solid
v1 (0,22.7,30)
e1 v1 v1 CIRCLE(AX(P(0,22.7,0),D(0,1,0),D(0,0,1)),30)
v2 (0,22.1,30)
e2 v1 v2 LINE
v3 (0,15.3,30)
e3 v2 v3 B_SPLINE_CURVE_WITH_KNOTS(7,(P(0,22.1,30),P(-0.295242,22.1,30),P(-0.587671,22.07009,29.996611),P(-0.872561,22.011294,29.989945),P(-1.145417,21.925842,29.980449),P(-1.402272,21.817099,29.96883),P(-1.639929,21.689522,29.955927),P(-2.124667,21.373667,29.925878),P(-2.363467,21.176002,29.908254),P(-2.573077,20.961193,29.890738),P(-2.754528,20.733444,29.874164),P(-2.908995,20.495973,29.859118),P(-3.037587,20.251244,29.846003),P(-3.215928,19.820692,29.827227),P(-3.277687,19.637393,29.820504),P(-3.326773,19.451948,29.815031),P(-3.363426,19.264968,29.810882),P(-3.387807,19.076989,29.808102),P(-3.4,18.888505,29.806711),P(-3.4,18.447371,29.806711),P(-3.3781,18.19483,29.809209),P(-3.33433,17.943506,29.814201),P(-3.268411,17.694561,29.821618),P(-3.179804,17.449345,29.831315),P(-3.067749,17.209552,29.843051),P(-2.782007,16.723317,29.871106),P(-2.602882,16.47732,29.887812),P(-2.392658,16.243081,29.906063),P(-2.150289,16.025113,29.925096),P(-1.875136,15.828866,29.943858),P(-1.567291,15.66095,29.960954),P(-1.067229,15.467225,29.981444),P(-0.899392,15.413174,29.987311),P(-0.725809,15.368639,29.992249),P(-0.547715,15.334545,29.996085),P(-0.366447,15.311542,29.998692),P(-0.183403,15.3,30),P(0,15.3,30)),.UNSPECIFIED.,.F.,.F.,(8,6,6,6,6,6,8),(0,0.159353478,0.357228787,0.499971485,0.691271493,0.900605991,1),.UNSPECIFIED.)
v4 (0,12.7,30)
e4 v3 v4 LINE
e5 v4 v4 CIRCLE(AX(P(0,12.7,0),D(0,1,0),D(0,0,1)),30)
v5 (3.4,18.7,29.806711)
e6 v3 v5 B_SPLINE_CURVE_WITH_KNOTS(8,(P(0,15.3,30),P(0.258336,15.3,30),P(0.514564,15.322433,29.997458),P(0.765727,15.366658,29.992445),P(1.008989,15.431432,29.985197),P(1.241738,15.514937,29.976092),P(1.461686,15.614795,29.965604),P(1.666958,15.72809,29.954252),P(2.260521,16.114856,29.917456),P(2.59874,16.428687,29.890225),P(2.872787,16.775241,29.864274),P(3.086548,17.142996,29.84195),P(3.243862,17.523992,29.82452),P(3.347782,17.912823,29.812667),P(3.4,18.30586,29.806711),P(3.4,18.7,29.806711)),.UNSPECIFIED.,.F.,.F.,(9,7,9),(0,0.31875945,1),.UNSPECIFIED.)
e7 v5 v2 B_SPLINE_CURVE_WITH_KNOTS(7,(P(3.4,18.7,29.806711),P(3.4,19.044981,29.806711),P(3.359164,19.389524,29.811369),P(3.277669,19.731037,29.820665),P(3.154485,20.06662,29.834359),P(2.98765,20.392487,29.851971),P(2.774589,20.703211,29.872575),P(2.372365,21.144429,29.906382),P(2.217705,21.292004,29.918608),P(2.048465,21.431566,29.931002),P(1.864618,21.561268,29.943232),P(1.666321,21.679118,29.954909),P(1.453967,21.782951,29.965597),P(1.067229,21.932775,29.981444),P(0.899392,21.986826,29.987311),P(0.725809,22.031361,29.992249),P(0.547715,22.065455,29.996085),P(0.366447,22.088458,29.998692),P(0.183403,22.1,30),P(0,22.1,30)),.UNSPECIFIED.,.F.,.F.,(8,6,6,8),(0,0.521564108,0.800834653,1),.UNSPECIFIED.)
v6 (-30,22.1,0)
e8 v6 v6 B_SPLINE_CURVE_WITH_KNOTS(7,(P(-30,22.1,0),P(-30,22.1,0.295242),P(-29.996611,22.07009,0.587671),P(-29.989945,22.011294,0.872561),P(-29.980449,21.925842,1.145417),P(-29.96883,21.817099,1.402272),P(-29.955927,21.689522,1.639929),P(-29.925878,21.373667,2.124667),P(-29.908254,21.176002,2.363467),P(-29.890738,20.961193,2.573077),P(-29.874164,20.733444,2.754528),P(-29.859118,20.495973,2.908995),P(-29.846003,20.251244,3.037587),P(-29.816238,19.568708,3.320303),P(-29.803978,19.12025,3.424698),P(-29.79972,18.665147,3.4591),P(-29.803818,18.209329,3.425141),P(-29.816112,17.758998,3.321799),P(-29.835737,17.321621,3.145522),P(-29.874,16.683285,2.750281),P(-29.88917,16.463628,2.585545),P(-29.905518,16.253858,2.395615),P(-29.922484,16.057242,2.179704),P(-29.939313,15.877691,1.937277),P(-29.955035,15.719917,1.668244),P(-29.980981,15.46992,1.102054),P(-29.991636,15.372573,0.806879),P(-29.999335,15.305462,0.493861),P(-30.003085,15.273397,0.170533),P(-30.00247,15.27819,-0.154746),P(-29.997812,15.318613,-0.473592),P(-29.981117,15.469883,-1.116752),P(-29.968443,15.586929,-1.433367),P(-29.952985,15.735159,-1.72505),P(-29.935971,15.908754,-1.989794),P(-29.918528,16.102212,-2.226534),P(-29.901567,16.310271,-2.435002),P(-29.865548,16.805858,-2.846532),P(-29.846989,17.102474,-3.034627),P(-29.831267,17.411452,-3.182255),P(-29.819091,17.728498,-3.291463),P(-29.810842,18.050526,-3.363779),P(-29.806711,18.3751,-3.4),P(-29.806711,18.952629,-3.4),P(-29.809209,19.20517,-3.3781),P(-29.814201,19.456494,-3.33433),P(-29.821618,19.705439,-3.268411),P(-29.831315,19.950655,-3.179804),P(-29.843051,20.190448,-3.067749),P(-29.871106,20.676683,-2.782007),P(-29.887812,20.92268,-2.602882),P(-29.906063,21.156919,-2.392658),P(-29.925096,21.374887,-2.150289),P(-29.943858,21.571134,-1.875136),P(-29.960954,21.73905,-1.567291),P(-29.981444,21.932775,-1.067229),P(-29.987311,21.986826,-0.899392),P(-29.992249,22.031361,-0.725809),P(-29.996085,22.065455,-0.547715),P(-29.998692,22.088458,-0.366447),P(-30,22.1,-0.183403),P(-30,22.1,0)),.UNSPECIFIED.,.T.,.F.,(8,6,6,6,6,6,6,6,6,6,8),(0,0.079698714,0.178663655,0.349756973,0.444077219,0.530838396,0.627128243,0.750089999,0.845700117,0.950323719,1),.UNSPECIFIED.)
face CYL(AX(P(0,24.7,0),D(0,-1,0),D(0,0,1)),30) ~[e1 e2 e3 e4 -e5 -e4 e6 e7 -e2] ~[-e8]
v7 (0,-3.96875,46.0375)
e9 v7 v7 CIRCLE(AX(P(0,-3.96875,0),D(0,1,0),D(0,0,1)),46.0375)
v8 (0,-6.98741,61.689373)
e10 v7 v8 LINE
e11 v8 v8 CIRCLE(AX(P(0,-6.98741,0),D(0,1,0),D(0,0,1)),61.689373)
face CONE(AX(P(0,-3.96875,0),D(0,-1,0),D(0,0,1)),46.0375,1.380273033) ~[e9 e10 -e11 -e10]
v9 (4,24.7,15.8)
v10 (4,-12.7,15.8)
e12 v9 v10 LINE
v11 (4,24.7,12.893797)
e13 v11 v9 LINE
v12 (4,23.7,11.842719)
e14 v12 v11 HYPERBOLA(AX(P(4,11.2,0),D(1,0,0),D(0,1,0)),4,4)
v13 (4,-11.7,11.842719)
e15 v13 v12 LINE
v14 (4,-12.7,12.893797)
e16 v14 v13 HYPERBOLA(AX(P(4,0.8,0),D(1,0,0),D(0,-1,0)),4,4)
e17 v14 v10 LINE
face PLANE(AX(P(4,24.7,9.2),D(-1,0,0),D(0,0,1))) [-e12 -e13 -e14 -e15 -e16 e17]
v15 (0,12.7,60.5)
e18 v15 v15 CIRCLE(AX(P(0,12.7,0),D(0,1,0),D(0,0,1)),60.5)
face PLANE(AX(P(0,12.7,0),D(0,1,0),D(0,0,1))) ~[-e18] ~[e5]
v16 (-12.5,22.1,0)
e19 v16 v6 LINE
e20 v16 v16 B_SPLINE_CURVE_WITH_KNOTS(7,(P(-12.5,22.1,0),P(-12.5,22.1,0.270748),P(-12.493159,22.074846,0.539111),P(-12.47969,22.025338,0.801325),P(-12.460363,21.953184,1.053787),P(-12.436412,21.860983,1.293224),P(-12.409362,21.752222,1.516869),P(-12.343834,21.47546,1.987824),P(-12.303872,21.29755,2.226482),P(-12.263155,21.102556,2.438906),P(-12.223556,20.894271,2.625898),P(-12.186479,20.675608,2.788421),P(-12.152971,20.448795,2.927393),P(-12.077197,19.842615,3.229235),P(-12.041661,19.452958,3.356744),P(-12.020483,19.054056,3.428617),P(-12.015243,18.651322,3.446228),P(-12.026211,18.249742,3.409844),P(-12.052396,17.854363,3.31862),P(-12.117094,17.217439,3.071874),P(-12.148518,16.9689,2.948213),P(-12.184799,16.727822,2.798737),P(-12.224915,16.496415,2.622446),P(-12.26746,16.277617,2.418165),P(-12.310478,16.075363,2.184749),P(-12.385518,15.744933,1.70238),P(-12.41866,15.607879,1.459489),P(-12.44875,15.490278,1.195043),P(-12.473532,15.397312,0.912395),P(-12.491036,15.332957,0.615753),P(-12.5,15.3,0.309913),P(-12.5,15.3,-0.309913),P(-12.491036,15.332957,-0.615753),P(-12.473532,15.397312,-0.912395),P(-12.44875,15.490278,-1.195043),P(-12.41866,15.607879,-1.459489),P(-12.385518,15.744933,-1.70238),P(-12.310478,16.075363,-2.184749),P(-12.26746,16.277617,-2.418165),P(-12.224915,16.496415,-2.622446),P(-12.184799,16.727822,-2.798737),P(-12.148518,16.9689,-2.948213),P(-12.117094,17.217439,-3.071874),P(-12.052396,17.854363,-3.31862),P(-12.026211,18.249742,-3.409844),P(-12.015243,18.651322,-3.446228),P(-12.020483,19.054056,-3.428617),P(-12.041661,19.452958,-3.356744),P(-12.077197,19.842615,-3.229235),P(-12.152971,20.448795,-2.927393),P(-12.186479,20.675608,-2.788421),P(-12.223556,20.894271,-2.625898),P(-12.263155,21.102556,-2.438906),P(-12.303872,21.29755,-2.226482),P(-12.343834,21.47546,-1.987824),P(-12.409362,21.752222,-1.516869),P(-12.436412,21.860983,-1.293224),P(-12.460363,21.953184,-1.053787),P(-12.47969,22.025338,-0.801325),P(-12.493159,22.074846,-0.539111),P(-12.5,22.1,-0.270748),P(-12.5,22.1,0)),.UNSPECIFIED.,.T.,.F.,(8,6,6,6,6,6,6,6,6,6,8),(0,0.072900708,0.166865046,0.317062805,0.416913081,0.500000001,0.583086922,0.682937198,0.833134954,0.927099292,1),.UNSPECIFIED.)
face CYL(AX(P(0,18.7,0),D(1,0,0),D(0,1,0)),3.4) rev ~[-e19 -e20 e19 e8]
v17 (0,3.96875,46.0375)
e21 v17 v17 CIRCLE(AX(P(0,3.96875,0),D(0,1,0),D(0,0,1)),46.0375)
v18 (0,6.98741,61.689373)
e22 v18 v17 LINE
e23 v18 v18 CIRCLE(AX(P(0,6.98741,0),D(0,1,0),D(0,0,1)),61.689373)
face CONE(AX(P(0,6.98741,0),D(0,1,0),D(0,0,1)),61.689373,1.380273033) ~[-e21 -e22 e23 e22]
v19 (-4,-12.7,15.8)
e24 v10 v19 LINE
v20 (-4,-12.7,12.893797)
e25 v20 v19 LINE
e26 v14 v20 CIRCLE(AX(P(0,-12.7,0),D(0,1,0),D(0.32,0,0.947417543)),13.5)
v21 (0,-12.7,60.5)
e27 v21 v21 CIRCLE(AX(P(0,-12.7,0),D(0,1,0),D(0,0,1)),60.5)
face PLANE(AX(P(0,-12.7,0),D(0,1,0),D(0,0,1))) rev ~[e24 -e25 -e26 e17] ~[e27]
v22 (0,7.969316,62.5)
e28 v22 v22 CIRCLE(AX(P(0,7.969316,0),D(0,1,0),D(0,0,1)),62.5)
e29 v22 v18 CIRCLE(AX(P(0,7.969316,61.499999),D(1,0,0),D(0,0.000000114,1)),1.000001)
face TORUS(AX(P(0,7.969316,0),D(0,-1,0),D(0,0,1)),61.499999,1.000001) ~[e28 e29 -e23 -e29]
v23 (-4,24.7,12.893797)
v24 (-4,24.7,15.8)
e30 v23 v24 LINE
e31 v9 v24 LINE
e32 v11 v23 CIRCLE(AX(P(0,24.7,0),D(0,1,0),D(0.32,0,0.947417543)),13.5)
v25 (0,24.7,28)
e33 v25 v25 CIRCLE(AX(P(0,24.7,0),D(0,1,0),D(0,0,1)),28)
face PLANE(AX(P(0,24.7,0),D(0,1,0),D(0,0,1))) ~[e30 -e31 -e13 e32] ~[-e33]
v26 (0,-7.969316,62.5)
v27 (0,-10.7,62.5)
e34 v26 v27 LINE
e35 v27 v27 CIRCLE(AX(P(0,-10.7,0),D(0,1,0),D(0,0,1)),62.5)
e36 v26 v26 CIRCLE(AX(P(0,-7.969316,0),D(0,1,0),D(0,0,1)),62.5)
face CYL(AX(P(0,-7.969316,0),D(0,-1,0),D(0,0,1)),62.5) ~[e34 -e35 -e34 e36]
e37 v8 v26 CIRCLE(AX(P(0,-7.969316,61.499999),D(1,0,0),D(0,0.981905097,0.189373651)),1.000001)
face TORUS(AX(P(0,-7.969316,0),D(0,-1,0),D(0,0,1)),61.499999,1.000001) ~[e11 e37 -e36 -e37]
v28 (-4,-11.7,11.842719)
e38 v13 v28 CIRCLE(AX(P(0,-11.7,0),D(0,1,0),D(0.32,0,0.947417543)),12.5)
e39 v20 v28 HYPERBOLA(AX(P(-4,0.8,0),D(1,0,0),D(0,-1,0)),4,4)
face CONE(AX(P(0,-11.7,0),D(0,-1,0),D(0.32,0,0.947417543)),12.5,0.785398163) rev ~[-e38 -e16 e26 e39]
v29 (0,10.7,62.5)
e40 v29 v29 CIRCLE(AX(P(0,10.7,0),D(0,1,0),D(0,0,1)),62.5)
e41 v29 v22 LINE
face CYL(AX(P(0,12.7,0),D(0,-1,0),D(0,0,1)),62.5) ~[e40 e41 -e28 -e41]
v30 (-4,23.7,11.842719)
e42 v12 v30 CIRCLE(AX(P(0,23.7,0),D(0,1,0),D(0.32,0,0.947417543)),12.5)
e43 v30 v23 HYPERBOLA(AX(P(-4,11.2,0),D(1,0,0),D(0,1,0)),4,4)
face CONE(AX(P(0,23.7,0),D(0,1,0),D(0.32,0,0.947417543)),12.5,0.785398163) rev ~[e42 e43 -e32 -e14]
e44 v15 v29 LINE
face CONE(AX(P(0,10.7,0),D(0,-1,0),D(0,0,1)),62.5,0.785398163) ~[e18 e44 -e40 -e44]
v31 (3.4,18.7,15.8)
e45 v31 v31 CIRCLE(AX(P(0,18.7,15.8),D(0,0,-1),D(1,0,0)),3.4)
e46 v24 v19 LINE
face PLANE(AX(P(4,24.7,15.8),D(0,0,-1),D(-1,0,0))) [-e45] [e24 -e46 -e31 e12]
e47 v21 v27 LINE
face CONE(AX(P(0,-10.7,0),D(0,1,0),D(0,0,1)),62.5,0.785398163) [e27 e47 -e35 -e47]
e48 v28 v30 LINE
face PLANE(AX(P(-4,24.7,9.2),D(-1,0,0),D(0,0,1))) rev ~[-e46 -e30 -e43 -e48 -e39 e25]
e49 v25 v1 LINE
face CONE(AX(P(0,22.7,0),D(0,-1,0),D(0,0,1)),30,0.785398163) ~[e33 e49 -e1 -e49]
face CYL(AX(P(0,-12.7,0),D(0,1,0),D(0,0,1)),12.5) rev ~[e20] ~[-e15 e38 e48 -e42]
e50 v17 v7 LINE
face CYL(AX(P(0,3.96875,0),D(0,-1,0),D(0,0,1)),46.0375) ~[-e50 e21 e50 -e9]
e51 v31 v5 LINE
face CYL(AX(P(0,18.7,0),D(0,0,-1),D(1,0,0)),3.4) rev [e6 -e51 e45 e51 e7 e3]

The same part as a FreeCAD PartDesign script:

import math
import FreeCAD as App
import Part
import Sketcher
from FreeCAD import Vector
Q = App.Units.Quantity


def edges_at(feature, points):
    """Names of the edges that pass closest to the given points."""
    edges = feature.Shape.Edges
    near = lambda p: min(range(len(edges)), key=lambda i: edges[i].distToShape(Part.Vertex(*p))[0])
    return sorted({f"Edge{near(p) + 1}" for p in points})


def add_polygon(sketch, points):
    """Adds a closed chain of lines whose ends are joined by coincident constraints."""
    first, n = sketch.GeometryCount, len(points)
    for a, b in zip(points, points[1:] + points[:1]):
        sketch.addGeometry(Part.LineSegment(App.Vector(*a, 0), App.Vector(*b, 0)), False)
    for i in range(n):
        sketch.addConstraint(Sketcher.Constraint("Coincident", first + i, 2, first + (i + 1) % n, 1))

doc = App.newDocument("Part")
params = doc.addObject("Spreadsheet::Sheet", "Params")
for row, (alias, value) in enumerate([
    ("sketch1_radius", "1.000001 mm"),
    ("sketch1_width", "12 mm"),
    ("sketch1_height", "50 mm"),
    ("sketch1_width2", "37.4 mm"),
    ("sketch1_height2", "17.5 mm"),
    ("revolution_angle", "360 deg"),
    ("chamfer_size", "2 mm"),
    ("chamfer2_size", "2 mm"),
    ("sketch2_width", "8 mm"),
    ("sketch2_height", "6.6 mm"),
    ("sketch3_diameter", "6.8 mm"),
    ("sketch4_diameter", "6.8 mm"),
    ("chamfer3_size", "1 mm"),
    ("chamfer4_size", "2 mm"),
], start=1):
    params.set(f"A{row}", alias)
    params.set(f"B{row}", "=" + value)
    params.setAlias(f"B{row}", alias)

body = doc.addObject("PartDesign::Body", "Body")

# Sketch on YZ plane
sketch1 = body.newObject("Sketcher::SketchObject", "Sketch")
sketch1.AttachmentSupport = (doc.getObject("YZ_Plane"), [""])
sketch1.MapMode = "FlatFace"
sketch1.addGeometry([
    Part.LineSegment(Vector(-12.7, 62.5, 0), Vector(-12.7, 12.5, 0)),  # 0
    Part.LineSegment(Vector(-12.7, 12.5, 0), Vector(24.7, 12.5, 0)),  # 1
    Part.LineSegment(Vector(24.7, 12.5, 0), Vector(24.7, 30, 0)),  # 2
    Part.LineSegment(Vector(24.7, 30, 0), Vector(12.7, 30, 0)),  # 3
    Part.LineSegment(Vector(12.7, 30, 0), Vector(12.7, 62.5, 0)),  # 4
    Part.LineSegment(Vector(12.7, 62.5, 0), Vector(8, 62.5, 0)),  # 5
    Part.ArcOfCircle(Part.Circle(Vector(8, 61.5, 0), Vector(0, 0, 1), 1), math.radians(90), math.radians(169)),  # 6
    Part.LineSegment(Vector(7, 61.7, 0), Vector(4, 46, 0)),  # 7
    Part.LineSegment(Vector(4, 46, 0), Vector(-4, 46, 0)),  # 8
    Part.LineSegment(Vector(-4, 46, 0), Vector(-7, 61.7, 0)),  # 9
    Part.ArcOfCircle(Part.Circle(Vector(-8, 61.5, 0), Vector(0, 0, 1), 1), math.radians(11), math.radians(90)),  # 10
    Part.LineSegment(Vector(-8, 62.5, 0), Vector(-12.7, 62.5, 0)),  # 11
], False)
sketch1.addConstraint([
    Sketcher.Constraint("Coincident", 0, 2, 1, 1),
    Sketcher.Constraint("Coincident", 1, 2, 2, 1),
    Sketcher.Constraint("Coincident", 2, 2, 3, 1),
    Sketcher.Constraint("Coincident", 3, 2, 4, 1),
    Sketcher.Constraint("Coincident", 4, 2, 5, 1),
    Sketcher.Constraint("Tangent", 5, 2, 6, 1),
    Sketcher.Constraint("Tangent", 6, 2, 7, 1),
    Sketcher.Constraint("Coincident", 7, 2, 8, 1),
    Sketcher.Constraint("Coincident", 8, 2, 9, 1),
    Sketcher.Constraint("Tangent", 9, 2, 10, 1),
    Sketcher.Constraint("Tangent", 10, 2, 11, 1),
    Sketcher.Constraint("Coincident", 11, 2, 0, 1),
    Sketcher.Constraint("Vertical", 0),
    Sketcher.Constraint("Horizontal", 1),
    Sketcher.Constraint("Vertical", 2),
    Sketcher.Constraint("Horizontal", 3),
    Sketcher.Constraint("Vertical", 4),
    Sketcher.Constraint("Horizontal", 5),
    Sketcher.Constraint("Horizontal", 8),
    Sketcher.Constraint("Horizontal", 11),
    Sketcher.Constraint("Equal", 6, 10),
    Sketcher.Constraint("Symmetric", 6, 3, 10, 3, -2),
    Sketcher.Constraint("Horizontal", 6, 2, 9, 2),
    Sketcher.Constraint("Equal", 5, 11),
    Sketcher.Constraint("Radius", 6, Q("1.000001 mm")),
    Sketcher.Constraint("DistanceX", 3, 2, 3, 1, Q("12 mm")),
    Sketcher.Constraint("DistanceY", 0, 2, 0, 1, Q("50 mm")),
    Sketcher.Constraint("DistanceX", 1, 1, 1, 2, Q("37.4 mm")),
    Sketcher.Constraint("DistanceY", 2, 1, 2, 2, Q("17.5 mm")),
    Sketcher.Constraint("DistanceY", -1, 1, 2, 2, Q("30 mm")),
    Sketcher.Constraint("DistanceX", 8, 2, 8, 1, Q("7.9375 mm")),
    Sketcher.Constraint("DistanceY", -1, 1, 7, 2, Q("46.0375 mm")),
    Sketcher.Constraint("Distance", 7, Q("15.940309 mm")),
])
sketch1.setExpression("Constraints[24]", "Params.sketch1_radius")
sketch1.setExpression("Constraints[25]", "Params.sketch1_width")
sketch1.setExpression("Constraints[26]", "Params.sketch1_height")
sketch1.setExpression("Constraints[27]", "Params.sketch1_width2")
sketch1.setExpression("Constraints[28]", "Params.sketch1_height2")
revolution = body.newObject("PartDesign::Revolution", "Revolution")
revolution.Profile = sketch1
revolution.ReferenceAxis = (sketch1, ["H_Axis"])
revolution.setExpression("Angle", "Params.revolution_angle")
doc.recompute()

chamfer = body.newObject("PartDesign::Chamfer", "Chamfer")
chamfer.Base = (revolution, edges_at(revolution, [(0, 12.7, -62.5)]))
chamfer.setExpression("Size", "Params.chamfer_size")
doc.recompute()

chamfer2 = body.newObject("PartDesign::Chamfer", "Chamfer001")
chamfer2.Base = (chamfer, edges_at(chamfer, [(0, -12.7, -62.5)]))
chamfer2.setExpression("Size", "Params.chamfer2_size")

# Sketch on XZ plane
sketch2 = body.newObject("Sketcher::SketchObject", "Sketch001")
sketch2.AttachmentSupport = (doc.getObject("XZ_Plane"), [""])
sketch2.MapMode = "FlatFace"
sketch2.AttachmentOffset = App.Placement(Vector(0, 0, -24.7), App.Rotation())
add_polygon(sketch2, [(4, 16), (4, 9), (-4, 9), (-4, 16)])  # lines 0-3
sketch2.addConstraint([
    Sketcher.Constraint("Vertical", 0),
    Sketcher.Constraint("Horizontal", 1),
    Sketcher.Constraint("Vertical", 2),
    Sketcher.Constraint("Horizontal", 3),
    Sketcher.Constraint("DistanceX", 1, 2, 1, 1, Q("8 mm")),
    Sketcher.Constraint("DistanceY", 0, 2, 0, 1, Q("6.6 mm")),
    Sketcher.Constraint("DistanceX", -1, 1, 0, 2, Q("4 mm")),
    Sketcher.Constraint("DistanceY", -1, 1, 0, 2, Q("9.2 mm")),
])
sketch2.setExpression("Constraints[8]", "Params.sketch2_width")
sketch2.setExpression("Constraints[9]", "Params.sketch2_height")
pocket1 = body.newObject("PartDesign::Pocket", "Pocket")
pocket1.Profile = sketch2
pocket1.Type = "ThroughAll"
pocket1.Reversed = True

# Sketch on XY plane
sketch3 = body.newObject("Sketcher::SketchObject", "Sketch002")
sketch3.AttachmentSupport = (doc.getObject("XY_Plane"), [""])
sketch3.MapMode = "FlatFace"
sketch3.addGeometry(Part.Circle(Vector(0, 18.7, 0), Vector(0, 0, 1), 3.4), False)
sketch3.addConstraint([
    Sketcher.Constraint("PointOnObject", 0, 3, -2),
    Sketcher.Constraint("Diameter", 0, Q("6.8 mm")),
    Sketcher.Constraint("DistanceY", -1, 1, 0, 3, Q("18.7 mm")),
])
sketch3.setExpression("Constraints[1]", "Params.sketch3_diameter")
pocket2 = body.newObject("PartDesign::Pocket", "Pocket001")
pocket2.Profile = sketch3
pocket2.Type = "ThroughAll"
pocket2.Reversed = True

# Sketch on YZ plane
sketch4 = body.newObject("Sketcher::SketchObject", "Sketch003")
sketch4.AttachmentSupport = (doc.getObject("YZ_Plane"), [""])
sketch4.MapMode = "FlatFace"
sketch4.addGeometry(Part.Circle(Vector(18.7, 0, 0), Vector(0, 0, 1), 3.4), False)
sketch4.addConstraint([
    Sketcher.Constraint("PointOnObject", 0, 3, -1),
    Sketcher.Constraint("Diameter", 0, Q("6.8 mm")),
    Sketcher.Constraint("DistanceX", -1, 1, 0, 3, Q("18.7 mm")),
])
sketch4.setExpression("Constraints[1]", "Params.sketch4_diameter")
pocket3 = body.newObject("PartDesign::Pocket", "Pocket002")
pocket3.Profile = sketch4
pocket3.Type = "ThroughAll"
doc.recompute()

chamfer3 = body.newObject("PartDesign::Chamfer", "Chamfer002")
chamfer3.Base = (pocket3, edges_at(pocket3, [(0, 24.7, -12.5), (0, -12.7, -12.5)]))
chamfer3.setExpression("Size", "Params.chamfer3_size")
doc.recompute()

chamfer4 = body.newObject("PartDesign::Chamfer", "Chamfer003")
chamfer4.Base = (chamfer3, edges_at(chamfer3, [(0, 24.7, -30)]))
chamfer4.setExpression("Size", "Params.chamfer4_size")

doc.recompute()
